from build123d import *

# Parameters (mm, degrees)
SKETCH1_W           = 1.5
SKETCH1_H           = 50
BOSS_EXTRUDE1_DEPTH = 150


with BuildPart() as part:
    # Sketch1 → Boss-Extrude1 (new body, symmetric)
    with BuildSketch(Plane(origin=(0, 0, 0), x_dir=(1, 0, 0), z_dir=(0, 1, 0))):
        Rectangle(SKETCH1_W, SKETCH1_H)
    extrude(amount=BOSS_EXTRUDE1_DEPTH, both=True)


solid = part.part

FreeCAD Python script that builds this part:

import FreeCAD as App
import Part
import Sketcher

V = App.Vector


def add_polygon(sketch, points):
    """Adds a closed chain of lines whose ends are joined by coincident constraints."""
    first, n = sketch.GeometryCount, len(points)
    for a, b in zip(points, points[1:] + points[:1]):
        sketch.addGeometry(Part.LineSegment(App.Vector(*a, 0), App.Vector(*b, 0)), False)
    for i in range(n):
        sketch.addConstraint(Sketcher.Constraint("Coincident", first + i, 2, first + (i + 1) % n, 1))

doc = App.newDocument("Part")
body = doc.addObject("PartDesign::Body", "Body")

sketch1 = doc.addObject("Sketcher::SketchObject", "Sketch")
body.addObject(sketch1)
sketch1.AttachmentSupport = (doc.XZ_Plane, [""])
sketch1.MapMode = "FlatFace"
add_polygon(sketch1, [(-0.8, -25), (-0.8, 25), (0.8, 25), (0.8, -25)])
sketch1.addConstraint([
    Sketcher.Constraint("Vertical", 0),
    Sketcher.Constraint("Horizontal", 1),
    Sketcher.Constraint("Vertical", 2),
    Sketcher.Constraint("Horizontal", 3),
    Sketcher.Constraint("Symmetric", 0, 2, 2, 2, -1, 1),
    Sketcher.Constraint("DistanceY", 0, 1, 0, 2, 50.0),
    Sketcher.Constraint("DistanceX", 1, 1, 1, 2, 1.5),
])
pad1 = doc.addObject("PartDesign::Pad", "Pad")
body.addObject(pad1)
pad1.Profile = sketch1
pad1.Length = 300
pad1.Midplane = True

doc.recompute()
